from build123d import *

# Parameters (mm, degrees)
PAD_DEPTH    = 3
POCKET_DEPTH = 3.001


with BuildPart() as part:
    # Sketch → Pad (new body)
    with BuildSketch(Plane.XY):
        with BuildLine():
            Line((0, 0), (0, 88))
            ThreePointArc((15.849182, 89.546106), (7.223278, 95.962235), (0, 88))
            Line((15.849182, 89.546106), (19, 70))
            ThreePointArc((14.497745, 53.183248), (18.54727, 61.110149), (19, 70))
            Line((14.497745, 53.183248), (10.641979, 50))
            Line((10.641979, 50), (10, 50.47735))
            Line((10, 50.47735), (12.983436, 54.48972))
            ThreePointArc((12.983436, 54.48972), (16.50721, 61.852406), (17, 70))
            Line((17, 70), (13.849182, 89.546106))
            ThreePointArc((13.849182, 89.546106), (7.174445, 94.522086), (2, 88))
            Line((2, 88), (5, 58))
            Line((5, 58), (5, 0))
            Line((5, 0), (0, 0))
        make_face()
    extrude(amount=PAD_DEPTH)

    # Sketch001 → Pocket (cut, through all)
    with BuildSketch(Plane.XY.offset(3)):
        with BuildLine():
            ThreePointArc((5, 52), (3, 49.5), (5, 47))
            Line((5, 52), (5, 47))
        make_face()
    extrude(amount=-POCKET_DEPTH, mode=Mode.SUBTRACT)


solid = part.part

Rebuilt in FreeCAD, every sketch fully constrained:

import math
import FreeCAD as App
import Part
import Sketcher
from FreeCAD import Vector

doc = App.newDocument("Part")
body = doc.addObject("PartDesign::Body", "Body")

sketch1 = doc.addObject("Sketcher::SketchObject", "Sketch")
body.addObject(sketch1)
sketch1.AttachmentSupport = (doc.XY_Plane, [""])
sketch1.MapMode = "FlatFace"
sketch1.addGeometry(Part.LineSegment(Vector(0, 88, 0), Vector(0, 0, 0)), False)
sketch1.addGeometry(Part.LineSegment(Vector(0, 0, 0), Vector(5, 0, 0)), False)
sketch1.addGeometry(Part.LineSegment(Vector(5, 0, 0), Vector(5, 58, 0)), False)
sketch1.addGeometry(Part.LineSegment(Vector(5, 58, 0), Vector(2, 88, 0)), False)
sketch1.addGeometry(Part.ArcOfCircle(Part.Circle(Vector(7.9, 88.6, 0), Vector(0, 0, 1), 6), math.radians(9), math.radians(186)), False)
sketch1.addGeometry(Part.LineSegment(Vector(13.8, 89.5, 0), Vector(17, 70, 0)), False)
sketch1.addGeometry(Part.ArcOfCircle(Part.Circle(Vector(-4.1, 67.2, 0), Vector(0, 0, 1), 21.3), math.radians(-37), math.radians(8)), False)
sketch1.addGeometry(Part.LineSegment(Vector(13, 54.5, 0), Vector(10, 50.5, 0)), False)
sketch1.addGeometry(Part.LineSegment(Vector(10, 50.5, 0), Vector(10.6, 50, 0)), False)
sketch1.addGeometry(Part.LineSegment(Vector(10.6, 50, 0), Vector(14.5, 53.2, 0)), False)
sketch1.addGeometry(Part.ArcOfCircle(Part.Circle(Vector(-2, 66.6, 0), Vector(0, 0, 1), 21.3), math.radians(-39), math.radians(9)), False)
sketch1.addGeometry(Part.LineSegment(Vector(19, 70, 0), Vector(15.8, 89.5, 0)), False)
sketch1.addGeometry(Part.ArcOfCircle(Part.Circle(Vector(8, 88, 0), Vector(0, 0, 1), 8), math.radians(11), math.radians(180)), False)
sketch1.addConstraint(Sketcher.Constraint("Coincident", 0, 2, 1, 1))
sketch1.addConstraint(Sketcher.Constraint("Coincident", 1, 2, 2, 1))
sketch1.addConstraint(Sketcher.Constraint("Coincident", 2, 2, 3, 1))
sketch1.addConstraint(Sketcher.Constraint("Coincident", 3, 2, 4, 2))
sketch1.addConstraint(Sketcher.Constraint("Tangent", 4, 1, 5, 1))
sketch1.addConstraint(Sketcher.Constraint("Coincident", 5, 2, 6, 2))
sketch1.addConstraint(Sketcher.Constraint("Tangent", 6, 1, 7, 1))
sketch1.addConstraint(Sketcher.Constraint("Coincident", 7, 2, 8, 1))
sketch1.addConstraint(Sketcher.Constraint("Coincident", 8, 2, 9, 1))
sketch1.addConstraint(Sketcher.Constraint("Coincident", 9, 2, 10, 1))
sketch1.addConstraint(Sketcher.Constraint("Tangent", 10, 2, 11, 1))
sketch1.addConstraint(Sketcher.Constraint("Coincident", 11, 2, 12, 1))
sketch1.addConstraint(Sketcher.Constraint("Coincident", 12, 2, 0, 1))
sketch1.addConstraint(Sketcher.Constraint("Vertical", 0))
sketch1.addConstraint(Sketcher.Constraint("Horizontal", 1))
sketch1.addConstraint(Sketcher.Constraint("Vertical", 2))
sketch1.addConstraint(Sketcher.Constraint("Coincident", 0, 2, -1, 1))
sketch1.addConstraint(Sketcher.Constraint("Equal", 6, 10))
sketch1.addConstraint(Sketcher.Constraint("Perpendicular", 7, 8))
sketch1.addConstraint(Sketcher.Constraint("Parallel", 5, 11))
sketch1.addConstraint(Sketcher.Constraint("Horizontal", 5, 2, 10, 2))
sketch1.addConstraint(Sketcher.Constraint("Horizontal", 4, 1, 11, 2))
sketch1.addConstraint(Sketcher.Constraint("Horizontal", 3, 2, 12, 2))
sketch1.addConstraint(Sketcher.Constraint("Equal", 7, 9))
sketch1.addConstraint(Sketcher.Constraint("Radius", 12, 8.0))
sketch1.addConstraint(Sketcher.Constraint("DistanceX", 1, 1, 1, 2, 5.0))
sketch1.addConstraint(Sketcher.Constraint("DistanceY", 0, 2, 0, 1, 88.0))
sketch1.addConstraint(Sketcher.Constraint("DistanceY", 2, 1, 2, 2, 58.0))
sketch1.addConstraint(Sketcher.Constraint("Distance", 7, 5.0))
sketch1.addConstraint(Sketcher.Constraint("DistanceX", -1, 1, 3, 2, 2.0))
sketch1.addConstraint(Sketcher.Constraint("DistanceX", -1, 1, 5, 2, 17.0))
sketch1.addConstraint(Sketcher.Constraint("DistanceY", -1, 1, 5, 2, 70.0))
sketch1.addConstraint(Sketcher.Constraint("DistanceX", -1, 1, 7, 2, 10.0))
sketch1.addConstraint(Sketcher.Constraint("DistanceY", -1, 1, 8, 2, 50.0))
sketch1.addConstraint(Sketcher.Constraint("DistanceX", -1, 1, 10, 2, 19.0))
sketch1.addConstraint(Sketcher.Constraint("Distance", 8, 0.8))
sketch1.addConstraint(Sketcher.Constraint("Radius", 6, 21.27974))
sketch1.addConstraint(Sketcher.Constraint("Radius", 4, 5.977516))
sketch1.addConstraint(Sketcher.Constraint("DistanceY", -1, 1, 10, 3, 66.61344))
pad1 = doc.addObject("PartDesign::Pad", "Pad")
body.addObject(pad1)
pad1.Profile = sketch1
pad1.Length = 3

sketch2 = doc.addObject("Sketcher::SketchObject", "Sketch001")
body.addObject(sketch2)
sketch2.AttachmentSupport = (doc.XY_Plane, [""])
sketch2.MapMode = "FlatFace"
sketch2.AttachmentOffset = App.Placement(Vector(0, 0, 3), App.Rotation())
sketch2.addGeometry(Part.ArcOfCircle(Part.Circle(Vector(5.6, 49.5, 0), Vector(0, 0, 1), 2.6), math.radians(103), math.radians(257)), False)
sketch2.addGeometry(Part.LineSegment(Vector(5, 47, 0), Vector(5, 52, 0)), False)
sketch2.addConstraint(Sketcher.Constraint("Coincident", 0, 1, 1, 2))
sketch2.addConstraint(Sketcher.Constraint("Coincident", 1, 1, 0, 2))
sketch2.addConstraint(Sketcher.Constraint("Vertical", 1))
sketch2.addConstraint(Sketcher.Constraint("DistanceY", 1, 1, 1, 2, 5.0))
sketch2.addConstraint(Sketcher.Constraint("DistanceX", -1, 1, 0, 1, 5.0))
sketch2.addConstraint(Sketcher.Constraint("DistanceY", -1, 1, 0, 1, 52.0))
sketch2.addConstraint(Sketcher.Constraint("Radius", 0, 2.5625))
pocket1 = doc.addObject("PartDesign::Pocket", "Pocket")
body.addObject(pocket1)
pocket1.Profile = sketch2
pocket1.Type = "ThroughAll"

doc.recompute()
